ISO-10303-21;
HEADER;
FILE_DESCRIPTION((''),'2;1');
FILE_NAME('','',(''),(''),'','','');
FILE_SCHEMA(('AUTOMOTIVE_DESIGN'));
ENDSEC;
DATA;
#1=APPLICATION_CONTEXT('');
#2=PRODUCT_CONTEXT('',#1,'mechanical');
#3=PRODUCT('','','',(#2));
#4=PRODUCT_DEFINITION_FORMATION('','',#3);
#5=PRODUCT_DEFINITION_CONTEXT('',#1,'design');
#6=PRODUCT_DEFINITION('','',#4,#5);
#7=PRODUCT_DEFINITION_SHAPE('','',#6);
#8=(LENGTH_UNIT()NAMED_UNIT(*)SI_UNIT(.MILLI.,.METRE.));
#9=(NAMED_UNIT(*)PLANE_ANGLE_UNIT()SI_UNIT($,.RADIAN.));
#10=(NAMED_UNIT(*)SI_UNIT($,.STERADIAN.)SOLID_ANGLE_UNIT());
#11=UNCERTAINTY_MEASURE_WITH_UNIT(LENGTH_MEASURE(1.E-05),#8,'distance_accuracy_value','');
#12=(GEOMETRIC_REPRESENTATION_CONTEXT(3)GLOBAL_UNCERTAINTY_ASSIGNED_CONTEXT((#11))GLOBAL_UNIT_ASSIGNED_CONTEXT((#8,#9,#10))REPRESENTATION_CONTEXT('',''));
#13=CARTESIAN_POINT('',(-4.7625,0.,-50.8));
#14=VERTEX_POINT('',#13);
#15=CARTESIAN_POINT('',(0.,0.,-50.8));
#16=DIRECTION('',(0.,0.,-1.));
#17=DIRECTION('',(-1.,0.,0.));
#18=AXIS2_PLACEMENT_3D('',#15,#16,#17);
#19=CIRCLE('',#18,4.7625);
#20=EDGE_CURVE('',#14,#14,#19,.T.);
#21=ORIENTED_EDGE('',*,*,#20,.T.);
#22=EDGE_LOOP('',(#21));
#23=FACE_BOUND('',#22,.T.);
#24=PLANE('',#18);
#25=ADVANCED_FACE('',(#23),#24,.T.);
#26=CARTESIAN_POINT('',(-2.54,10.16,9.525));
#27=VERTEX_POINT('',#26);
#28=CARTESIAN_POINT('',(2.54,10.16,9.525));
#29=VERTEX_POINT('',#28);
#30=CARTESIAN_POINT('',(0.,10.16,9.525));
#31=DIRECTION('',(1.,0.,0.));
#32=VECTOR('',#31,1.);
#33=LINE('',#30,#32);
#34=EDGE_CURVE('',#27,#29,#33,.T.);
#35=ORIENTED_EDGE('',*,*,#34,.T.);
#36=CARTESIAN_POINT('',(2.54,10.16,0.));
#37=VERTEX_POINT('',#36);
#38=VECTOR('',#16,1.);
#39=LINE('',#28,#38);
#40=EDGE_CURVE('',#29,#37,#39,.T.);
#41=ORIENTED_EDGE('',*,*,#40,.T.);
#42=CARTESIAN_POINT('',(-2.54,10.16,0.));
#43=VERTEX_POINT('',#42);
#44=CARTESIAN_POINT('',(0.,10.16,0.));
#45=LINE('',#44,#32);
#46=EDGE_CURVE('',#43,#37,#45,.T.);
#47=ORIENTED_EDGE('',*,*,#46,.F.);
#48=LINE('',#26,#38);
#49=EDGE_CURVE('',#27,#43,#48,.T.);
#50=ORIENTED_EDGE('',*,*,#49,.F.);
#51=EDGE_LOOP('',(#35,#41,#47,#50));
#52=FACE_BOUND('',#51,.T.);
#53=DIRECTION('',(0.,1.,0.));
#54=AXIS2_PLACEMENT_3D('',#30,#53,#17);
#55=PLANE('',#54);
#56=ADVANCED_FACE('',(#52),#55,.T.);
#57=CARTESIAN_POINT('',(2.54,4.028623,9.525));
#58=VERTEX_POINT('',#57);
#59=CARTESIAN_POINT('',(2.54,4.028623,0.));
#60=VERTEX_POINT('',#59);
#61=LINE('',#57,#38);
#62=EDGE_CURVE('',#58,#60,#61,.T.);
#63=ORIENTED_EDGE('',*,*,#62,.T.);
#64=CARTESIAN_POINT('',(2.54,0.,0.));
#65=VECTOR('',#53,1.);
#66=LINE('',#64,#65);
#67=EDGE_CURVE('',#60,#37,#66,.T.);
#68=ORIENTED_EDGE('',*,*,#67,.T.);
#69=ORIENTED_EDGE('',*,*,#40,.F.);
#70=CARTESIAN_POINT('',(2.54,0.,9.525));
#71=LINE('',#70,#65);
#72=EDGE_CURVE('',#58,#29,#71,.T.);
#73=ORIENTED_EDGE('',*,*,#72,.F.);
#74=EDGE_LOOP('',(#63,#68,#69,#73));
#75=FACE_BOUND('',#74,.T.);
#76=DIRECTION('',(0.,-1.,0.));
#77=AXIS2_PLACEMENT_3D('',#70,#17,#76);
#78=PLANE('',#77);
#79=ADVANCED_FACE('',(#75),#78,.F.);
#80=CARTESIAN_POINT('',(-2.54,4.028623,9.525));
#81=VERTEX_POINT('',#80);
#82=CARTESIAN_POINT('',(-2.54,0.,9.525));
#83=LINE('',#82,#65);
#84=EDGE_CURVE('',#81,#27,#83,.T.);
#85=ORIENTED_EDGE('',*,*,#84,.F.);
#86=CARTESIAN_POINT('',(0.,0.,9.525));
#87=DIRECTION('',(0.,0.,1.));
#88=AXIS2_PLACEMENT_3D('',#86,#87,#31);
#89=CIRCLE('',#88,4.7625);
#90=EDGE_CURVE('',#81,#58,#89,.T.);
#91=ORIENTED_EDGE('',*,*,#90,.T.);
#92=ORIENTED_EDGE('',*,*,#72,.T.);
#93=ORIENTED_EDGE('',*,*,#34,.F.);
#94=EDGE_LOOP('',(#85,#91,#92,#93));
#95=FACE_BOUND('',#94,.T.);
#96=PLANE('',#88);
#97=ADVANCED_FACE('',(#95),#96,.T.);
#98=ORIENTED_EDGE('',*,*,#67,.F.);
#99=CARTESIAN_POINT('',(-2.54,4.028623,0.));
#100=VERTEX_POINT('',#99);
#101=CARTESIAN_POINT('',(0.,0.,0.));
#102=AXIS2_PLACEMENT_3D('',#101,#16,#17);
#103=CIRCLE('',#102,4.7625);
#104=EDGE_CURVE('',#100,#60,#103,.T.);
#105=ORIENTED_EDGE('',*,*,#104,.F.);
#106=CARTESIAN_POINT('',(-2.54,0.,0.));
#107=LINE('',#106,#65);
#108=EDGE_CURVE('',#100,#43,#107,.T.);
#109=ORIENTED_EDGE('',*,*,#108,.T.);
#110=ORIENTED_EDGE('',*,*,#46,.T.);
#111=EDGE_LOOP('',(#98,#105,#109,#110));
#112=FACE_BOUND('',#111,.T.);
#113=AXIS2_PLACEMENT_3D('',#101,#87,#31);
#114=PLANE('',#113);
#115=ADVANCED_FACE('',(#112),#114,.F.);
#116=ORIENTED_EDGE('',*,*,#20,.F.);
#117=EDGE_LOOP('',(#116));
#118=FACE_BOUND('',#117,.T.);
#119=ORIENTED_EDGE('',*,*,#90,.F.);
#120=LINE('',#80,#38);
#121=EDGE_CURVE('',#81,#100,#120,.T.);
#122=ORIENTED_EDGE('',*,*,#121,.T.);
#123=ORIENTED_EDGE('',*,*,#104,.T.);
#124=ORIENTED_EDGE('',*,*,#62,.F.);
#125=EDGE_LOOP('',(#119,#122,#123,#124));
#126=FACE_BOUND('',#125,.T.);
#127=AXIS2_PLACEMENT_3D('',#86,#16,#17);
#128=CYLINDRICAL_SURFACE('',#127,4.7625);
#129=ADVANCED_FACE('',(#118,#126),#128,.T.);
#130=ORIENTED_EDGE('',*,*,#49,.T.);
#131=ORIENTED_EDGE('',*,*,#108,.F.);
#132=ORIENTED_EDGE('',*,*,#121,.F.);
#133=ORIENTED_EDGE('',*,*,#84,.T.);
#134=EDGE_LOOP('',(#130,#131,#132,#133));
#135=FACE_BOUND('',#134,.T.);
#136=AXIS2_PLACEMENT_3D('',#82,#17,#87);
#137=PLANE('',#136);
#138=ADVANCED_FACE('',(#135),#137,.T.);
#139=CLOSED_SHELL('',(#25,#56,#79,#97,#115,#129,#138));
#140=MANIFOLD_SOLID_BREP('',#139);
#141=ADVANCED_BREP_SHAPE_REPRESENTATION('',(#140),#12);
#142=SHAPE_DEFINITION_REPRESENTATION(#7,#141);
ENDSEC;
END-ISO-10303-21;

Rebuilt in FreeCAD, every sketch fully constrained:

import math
import FreeCAD as App
import Part
import Sketcher

V = App.Vector
Q = App.Units.Quantity

doc = App.newDocument("Part")
body = doc.addObject("PartDesign::Body", "Body")

sketch1 = doc.addObject("Sketcher::SketchObject", "Sketch")
body.addObject(sketch1)
sketch1.AttachmentSupport = (doc.XY_Plane, [""])
sketch1.MapMode = "FlatFace"
sketch1.addGeometry([
    Part.ArcOfCircle(Part.Circle(V(0, 0, 0), V(0, 0, 1), 4.7625), math.radians(122.230953), math.radians(360)),
    Part.ArcOfCircle(Part.Circle(V(0, 0, 0), V(0, 0, 1), 4.7625), math.radians(0), math.radians(57.769047)),
    Part.LineSegment(V(2.54, 4.028623, 0), V(2.54, 10.16, 0)),
    Part.LineSegment(V(2.54, 10.16, 0), V(-2.54, 10.16, 0)),
    Part.LineSegment(V(-2.54, 10.16, 0), V(-2.54, 4.028623, 0)),
], False)
sketch1.addConstraint([
    Sketcher.Constraint("Tangent", 0, 2, 1, 1),
    Sketcher.Constraint("Coincident", 1, 2, 2, 1),
    Sketcher.Constraint("Coincident", 2, 2, 3, 1),
    Sketcher.Constraint("Coincident", 3, 2, 4, 1),
    Sketcher.Constraint("Coincident", 4, 2, 0, 1),
    Sketcher.Constraint("Vertical", 2),
    Sketcher.Constraint("Horizontal", 3),
    Sketcher.Constraint("Vertical", 4),
    Sketcher.Constraint("Coincident", 0, 3, -1, 1),
    Sketcher.Constraint("Equal", 0, 1),
    Sketcher.Constraint("PointOnObject", 0, 2, -1),
    Sketcher.Constraint("Horizontal", 1, 2, 4, 2),
    Sketcher.Constraint("DistanceX", 3, 2, 3, 1, Q("0.2 in")),
    Sketcher.Constraint("Radius", 0, Q("0.1875 in")),
    Sketcher.Constraint("DistanceY", -1, 1, 2, 2, Q("0.4 in")),
])
pad1 = doc.addObject("PartDesign::Pad", "Pad")
body.addObject(pad1)
pad1.Profile = sketch1
pad1.Length = Q("0.375 in")

sketch2 = doc.addObject("Sketcher::SketchObject", "Sketch001")
body.addObject(sketch2)
sketch2.AttachmentSupport = (doc.XY_Plane, [""])
sketch2.MapMode = "FlatFace"
sketch2.AttachmentOffset = App.Placement(V(0, 0, -2 * 25.4), App.Rotation())
sketch2.addGeometry(Part.Circle(V(0, 0, 0), V(0, 0, 1), 4.7625), False)
sketch2.addConstraint([
    Sketcher.Constraint("Coincident", 0, 3, -1, 1),
    Sketcher.Constraint("Diameter", 0, Q("0.375 in")),
])
pad2 = doc.addObject("PartDesign::Pad", "Pad001")
body.addObject(pad2)
pad2.Profile = sketch2
pad2.Length = Q("2 in")

doc.recompute()
